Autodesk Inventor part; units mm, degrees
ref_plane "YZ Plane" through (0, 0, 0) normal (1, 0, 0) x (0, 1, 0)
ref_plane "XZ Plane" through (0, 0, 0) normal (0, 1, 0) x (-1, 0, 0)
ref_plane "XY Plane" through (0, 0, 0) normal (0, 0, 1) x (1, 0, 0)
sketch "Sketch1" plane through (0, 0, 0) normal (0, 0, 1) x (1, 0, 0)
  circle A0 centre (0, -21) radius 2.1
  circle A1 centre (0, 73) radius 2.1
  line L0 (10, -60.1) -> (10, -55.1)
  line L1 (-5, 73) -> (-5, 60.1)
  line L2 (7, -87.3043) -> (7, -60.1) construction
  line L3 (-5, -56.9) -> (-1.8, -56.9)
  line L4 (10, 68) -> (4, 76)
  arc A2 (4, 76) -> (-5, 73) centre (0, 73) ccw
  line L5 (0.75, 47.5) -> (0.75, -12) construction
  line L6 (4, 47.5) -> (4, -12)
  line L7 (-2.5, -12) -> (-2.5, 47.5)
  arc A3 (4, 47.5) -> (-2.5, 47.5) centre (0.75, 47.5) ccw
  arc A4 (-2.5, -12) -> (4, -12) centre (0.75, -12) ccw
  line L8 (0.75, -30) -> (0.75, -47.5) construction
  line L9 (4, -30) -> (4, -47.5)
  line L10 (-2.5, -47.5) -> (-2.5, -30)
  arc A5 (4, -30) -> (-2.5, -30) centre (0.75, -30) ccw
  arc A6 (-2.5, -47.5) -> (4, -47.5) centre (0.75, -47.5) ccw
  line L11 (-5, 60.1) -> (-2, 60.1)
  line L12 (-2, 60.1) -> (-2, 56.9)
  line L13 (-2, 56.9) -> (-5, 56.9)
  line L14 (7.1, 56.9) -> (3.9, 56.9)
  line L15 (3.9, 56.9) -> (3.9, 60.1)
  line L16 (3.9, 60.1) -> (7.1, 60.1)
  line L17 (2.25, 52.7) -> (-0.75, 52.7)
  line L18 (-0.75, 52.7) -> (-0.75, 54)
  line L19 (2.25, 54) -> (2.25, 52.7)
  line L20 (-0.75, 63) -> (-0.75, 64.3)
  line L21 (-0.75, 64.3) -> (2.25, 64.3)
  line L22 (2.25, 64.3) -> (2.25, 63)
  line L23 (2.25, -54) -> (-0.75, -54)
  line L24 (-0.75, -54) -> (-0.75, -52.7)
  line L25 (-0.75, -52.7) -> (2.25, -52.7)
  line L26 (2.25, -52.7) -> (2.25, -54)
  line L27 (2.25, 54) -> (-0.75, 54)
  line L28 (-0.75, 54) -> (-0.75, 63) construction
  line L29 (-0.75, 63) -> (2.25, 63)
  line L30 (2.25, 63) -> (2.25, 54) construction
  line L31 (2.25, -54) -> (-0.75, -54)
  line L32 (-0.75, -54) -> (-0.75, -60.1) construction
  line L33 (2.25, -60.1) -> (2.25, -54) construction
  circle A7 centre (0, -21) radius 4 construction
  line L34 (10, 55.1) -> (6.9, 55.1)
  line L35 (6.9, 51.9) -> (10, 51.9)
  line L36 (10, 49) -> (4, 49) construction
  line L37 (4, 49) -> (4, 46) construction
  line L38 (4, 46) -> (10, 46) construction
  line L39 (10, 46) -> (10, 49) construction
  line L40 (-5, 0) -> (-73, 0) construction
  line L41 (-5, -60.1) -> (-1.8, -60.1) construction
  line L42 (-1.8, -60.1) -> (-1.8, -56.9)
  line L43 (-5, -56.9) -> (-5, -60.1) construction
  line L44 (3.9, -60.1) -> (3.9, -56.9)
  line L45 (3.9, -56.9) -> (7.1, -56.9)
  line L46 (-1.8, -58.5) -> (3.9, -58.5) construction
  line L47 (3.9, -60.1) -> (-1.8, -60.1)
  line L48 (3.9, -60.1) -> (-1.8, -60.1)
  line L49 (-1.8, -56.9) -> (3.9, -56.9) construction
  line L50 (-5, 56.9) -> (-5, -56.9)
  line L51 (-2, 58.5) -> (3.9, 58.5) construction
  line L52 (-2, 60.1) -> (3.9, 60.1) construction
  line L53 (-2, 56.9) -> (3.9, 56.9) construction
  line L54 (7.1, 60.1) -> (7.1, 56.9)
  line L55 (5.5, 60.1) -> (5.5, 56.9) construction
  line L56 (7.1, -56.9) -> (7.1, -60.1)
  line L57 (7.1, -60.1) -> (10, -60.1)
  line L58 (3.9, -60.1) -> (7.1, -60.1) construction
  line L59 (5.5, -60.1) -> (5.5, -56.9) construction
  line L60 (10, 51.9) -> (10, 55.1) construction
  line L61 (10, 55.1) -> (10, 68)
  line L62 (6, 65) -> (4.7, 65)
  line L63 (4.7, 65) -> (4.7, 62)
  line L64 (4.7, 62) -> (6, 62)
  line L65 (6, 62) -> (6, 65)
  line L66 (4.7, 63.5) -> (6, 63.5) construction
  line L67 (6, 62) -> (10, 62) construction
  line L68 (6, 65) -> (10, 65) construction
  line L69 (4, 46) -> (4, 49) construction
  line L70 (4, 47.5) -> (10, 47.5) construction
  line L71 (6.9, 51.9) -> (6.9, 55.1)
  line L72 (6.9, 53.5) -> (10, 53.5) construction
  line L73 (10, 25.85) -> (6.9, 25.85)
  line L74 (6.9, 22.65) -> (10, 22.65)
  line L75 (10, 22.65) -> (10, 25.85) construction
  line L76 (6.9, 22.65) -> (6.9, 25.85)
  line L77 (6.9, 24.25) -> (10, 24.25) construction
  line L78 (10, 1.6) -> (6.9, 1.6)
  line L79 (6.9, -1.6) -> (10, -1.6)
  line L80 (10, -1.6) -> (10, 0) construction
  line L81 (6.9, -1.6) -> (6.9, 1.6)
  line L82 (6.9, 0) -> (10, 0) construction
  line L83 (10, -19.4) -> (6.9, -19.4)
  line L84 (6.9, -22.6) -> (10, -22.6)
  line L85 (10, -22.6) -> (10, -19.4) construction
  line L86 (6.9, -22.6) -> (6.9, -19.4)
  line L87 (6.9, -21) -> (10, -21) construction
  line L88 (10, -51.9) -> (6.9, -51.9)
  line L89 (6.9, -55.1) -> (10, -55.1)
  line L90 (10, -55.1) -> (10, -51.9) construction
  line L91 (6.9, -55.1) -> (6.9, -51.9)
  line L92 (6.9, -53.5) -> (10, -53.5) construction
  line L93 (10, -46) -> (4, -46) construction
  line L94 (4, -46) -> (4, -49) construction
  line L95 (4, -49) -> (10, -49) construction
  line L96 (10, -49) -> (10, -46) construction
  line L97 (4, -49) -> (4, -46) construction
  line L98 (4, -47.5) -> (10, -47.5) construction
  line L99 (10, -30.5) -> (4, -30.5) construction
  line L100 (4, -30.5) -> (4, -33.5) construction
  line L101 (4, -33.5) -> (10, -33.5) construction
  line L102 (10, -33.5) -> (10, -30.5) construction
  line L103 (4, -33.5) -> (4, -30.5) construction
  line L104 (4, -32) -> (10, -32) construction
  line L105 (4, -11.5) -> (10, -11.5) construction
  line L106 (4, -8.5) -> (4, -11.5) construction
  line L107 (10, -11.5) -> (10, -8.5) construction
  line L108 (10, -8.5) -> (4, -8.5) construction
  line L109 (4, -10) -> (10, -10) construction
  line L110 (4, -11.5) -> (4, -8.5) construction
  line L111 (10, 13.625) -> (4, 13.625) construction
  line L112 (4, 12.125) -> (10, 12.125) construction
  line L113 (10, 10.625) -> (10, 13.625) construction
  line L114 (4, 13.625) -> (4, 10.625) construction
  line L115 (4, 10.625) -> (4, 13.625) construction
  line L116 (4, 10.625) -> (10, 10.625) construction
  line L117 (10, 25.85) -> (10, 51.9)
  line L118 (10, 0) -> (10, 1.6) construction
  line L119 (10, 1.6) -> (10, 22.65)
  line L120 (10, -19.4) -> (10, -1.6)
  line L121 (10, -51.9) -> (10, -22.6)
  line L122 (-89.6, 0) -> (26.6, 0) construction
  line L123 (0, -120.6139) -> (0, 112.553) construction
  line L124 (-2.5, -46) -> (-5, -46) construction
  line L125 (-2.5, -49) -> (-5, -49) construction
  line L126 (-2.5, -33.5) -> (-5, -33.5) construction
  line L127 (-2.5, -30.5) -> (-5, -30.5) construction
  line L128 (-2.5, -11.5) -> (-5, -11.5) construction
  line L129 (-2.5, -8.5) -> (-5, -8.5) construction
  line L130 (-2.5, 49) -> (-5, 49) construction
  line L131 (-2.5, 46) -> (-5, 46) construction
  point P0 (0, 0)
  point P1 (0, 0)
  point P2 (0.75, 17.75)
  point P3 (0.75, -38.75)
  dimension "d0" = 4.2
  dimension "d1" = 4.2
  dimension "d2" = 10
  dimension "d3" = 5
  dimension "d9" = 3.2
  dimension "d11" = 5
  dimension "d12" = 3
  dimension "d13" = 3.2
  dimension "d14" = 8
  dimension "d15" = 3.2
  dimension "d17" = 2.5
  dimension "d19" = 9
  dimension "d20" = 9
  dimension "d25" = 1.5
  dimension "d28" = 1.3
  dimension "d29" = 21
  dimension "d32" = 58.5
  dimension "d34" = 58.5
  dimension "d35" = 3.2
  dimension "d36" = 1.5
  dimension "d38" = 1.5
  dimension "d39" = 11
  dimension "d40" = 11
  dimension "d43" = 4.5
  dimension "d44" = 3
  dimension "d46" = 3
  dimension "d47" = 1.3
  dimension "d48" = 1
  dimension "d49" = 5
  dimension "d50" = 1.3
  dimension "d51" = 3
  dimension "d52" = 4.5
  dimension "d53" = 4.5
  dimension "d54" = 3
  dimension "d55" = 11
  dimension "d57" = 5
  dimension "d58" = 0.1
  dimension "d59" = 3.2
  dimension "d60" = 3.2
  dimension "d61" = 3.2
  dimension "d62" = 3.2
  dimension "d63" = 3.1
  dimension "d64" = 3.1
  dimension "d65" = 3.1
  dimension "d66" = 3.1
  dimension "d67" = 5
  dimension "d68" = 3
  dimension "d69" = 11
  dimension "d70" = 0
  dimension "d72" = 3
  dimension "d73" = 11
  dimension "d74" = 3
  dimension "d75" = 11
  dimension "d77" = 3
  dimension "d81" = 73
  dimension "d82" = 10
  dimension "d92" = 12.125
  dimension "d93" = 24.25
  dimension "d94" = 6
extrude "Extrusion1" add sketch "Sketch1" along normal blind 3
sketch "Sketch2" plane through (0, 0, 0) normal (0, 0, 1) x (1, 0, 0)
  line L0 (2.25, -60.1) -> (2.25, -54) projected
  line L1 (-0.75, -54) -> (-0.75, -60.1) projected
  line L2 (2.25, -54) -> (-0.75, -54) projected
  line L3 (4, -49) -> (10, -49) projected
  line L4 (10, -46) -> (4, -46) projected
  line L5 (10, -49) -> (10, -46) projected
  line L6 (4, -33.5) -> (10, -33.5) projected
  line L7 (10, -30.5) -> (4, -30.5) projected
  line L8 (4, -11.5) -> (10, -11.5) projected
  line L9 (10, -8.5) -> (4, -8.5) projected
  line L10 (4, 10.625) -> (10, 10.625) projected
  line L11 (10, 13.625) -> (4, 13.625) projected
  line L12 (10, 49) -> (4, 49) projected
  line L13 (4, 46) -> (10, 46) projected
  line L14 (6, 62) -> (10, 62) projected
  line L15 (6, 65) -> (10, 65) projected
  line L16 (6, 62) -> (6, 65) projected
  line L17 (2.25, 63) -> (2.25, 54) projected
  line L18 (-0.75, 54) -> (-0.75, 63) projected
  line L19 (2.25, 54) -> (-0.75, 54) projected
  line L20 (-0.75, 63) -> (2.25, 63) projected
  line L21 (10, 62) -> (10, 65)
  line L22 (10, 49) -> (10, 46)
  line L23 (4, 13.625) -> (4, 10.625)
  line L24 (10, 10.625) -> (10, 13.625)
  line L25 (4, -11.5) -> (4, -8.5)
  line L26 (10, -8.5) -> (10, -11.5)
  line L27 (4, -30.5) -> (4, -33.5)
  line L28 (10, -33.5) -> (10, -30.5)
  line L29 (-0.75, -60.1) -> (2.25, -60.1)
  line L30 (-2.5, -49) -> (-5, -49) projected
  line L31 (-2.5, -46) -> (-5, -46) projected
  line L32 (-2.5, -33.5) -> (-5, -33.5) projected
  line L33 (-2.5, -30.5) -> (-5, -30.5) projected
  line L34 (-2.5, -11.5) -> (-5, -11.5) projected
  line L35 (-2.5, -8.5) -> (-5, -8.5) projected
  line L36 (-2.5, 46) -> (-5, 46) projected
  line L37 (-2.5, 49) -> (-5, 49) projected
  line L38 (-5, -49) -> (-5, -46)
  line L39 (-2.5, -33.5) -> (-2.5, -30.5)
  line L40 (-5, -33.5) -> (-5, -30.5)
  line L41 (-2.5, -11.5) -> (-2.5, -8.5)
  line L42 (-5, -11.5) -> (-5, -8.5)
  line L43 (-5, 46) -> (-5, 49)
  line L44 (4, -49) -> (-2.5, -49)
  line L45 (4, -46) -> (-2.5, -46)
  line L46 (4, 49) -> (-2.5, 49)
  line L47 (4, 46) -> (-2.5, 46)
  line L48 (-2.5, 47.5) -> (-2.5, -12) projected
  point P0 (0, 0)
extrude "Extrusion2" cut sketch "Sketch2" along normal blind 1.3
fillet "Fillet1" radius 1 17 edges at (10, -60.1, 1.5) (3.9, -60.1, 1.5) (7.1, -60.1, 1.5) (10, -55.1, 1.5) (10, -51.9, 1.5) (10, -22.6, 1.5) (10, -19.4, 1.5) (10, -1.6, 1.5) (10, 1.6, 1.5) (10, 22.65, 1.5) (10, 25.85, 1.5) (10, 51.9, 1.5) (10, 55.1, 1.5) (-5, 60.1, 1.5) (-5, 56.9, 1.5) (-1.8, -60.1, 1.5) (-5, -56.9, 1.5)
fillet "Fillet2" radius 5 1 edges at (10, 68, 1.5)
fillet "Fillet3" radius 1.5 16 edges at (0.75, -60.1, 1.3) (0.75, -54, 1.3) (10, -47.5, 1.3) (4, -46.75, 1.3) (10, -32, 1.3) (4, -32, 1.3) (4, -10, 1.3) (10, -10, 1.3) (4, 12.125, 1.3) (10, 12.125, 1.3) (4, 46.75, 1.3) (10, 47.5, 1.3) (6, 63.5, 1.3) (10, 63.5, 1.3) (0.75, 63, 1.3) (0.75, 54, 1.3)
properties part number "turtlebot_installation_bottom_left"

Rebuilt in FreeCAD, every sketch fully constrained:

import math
import FreeCAD as App
import Part
import Sketcher
from FreeCAD import Vector
Q = App.Units.Quantity


def edges_at(feature, points):
    """Names of the edges that pass closest to the given points."""
    edges = feature.Shape.Edges
    near = lambda p: min(range(len(edges)), key=lambda i: edges[i].distToShape(Part.Vertex(*p))[0])
    return sorted({f"Edge{near(p) + 1}" for p in points})


def add_polygon(sketch, points):
    """Adds a closed chain of lines whose ends are joined by coincident constraints."""
    first, n = sketch.GeometryCount, len(points)
    for a, b in zip(points, points[1:] + points[:1]):
        sketch.addGeometry(Part.LineSegment(App.Vector(*a, 0), App.Vector(*b, 0)), False)
    for i in range(n):
        sketch.addConstraint(Sketcher.Constraint("Coincident", first + i, 2, first + (i + 1) % n, 1))

doc = App.newDocument("Part")
body = doc.addObject("PartDesign::Body", "Body")

sketch1 = body.newObject("Sketcher::SketchObject", "Sketch")
sketch1.AttachmentSupport = (doc.getObject("XY_Plane"), [""])
sketch1.MapMode = "FlatFace"
sketch1.addGeometry(Part.LineSegment(Vector(7.1, -60.1, 0), Vector(10, -60.1, 0)), False)
sketch1.addGeometry(Part.LineSegment(Vector(10, -60.1, 0), Vector(10, -55.1, 0)), False)
sketch1.addGeometry(Part.LineSegment(Vector(10, -55.1, 0), Vector(6.9, -55.1, 0)), False)
sketch1.addGeometry(Part.LineSegment(Vector(6.9, -55.1, 0), Vector(6.9, -51.9, 0)), False)
sketch1.addGeometry(Part.LineSegment(Vector(6.9, -51.9, 0), Vector(10, -51.9, 0)), False)
sketch1.addGeometry(Part.LineSegment(Vector(10, -51.9, 0), Vector(10, -22.6, 0)), False)
sketch1.addGeometry(Part.LineSegment(Vector(10, -22.6, 0), Vector(6.9, -22.6, 0)), False)
sketch1.addGeometry(Part.LineSegment(Vector(6.9, -22.6, 0), Vector(6.9, -19.4, 0)), False)
sketch1.addGeometry(Part.LineSegment(Vector(6.9, -19.4, 0), Vector(10, -19.4, 0)), False)
sketch1.addGeometry(Part.LineSegment(Vector(10, -19.4, 0), Vector(10, -1.6, 0)), False)
sketch1.addGeometry(Part.LineSegment(Vector(10, -1.6, 0), Vector(6.9, -1.6, 0)), False)
sketch1.addGeometry(Part.LineSegment(Vector(6.9, -1.6, 0), Vector(6.9, 1.6, 0)), False)
sketch1.addGeometry(Part.LineSegment(Vector(6.9, 1.6, 0), Vector(10, 1.6, 0)), False)
sketch1.addGeometry(Part.LineSegment(Vector(10, 1.6, 0), Vector(10, 22.65, 0)), False)
sketch1.addGeometry(Part.LineSegment(Vector(10, 22.65, 0), Vector(6.9, 22.65, 0)), False)
sketch1.addGeometry(Part.LineSegment(Vector(6.9, 22.65, 0), Vector(6.9, 25.85, 0)), False)
sketch1.addGeometry(Part.LineSegment(Vector(6.9, 25.85, 0), Vector(10, 25.85, 0)), False)
sketch1.addGeometry(Part.LineSegment(Vector(10, 25.85, 0), Vector(10, 51.9, 0)), False)
sketch1.addGeometry(Part.LineSegment(Vector(10, 51.9, 0), Vector(6.9, 51.9, 0)), False)
sketch1.addGeometry(Part.LineSegment(Vector(6.9, 51.9, 0), Vector(6.9, 55.1, 0)), False)
sketch1.addGeometry(Part.LineSegment(Vector(6.9, 55.1, 0), Vector(10, 55.1, 0)), False)
sketch1.addGeometry(Part.LineSegment(Vector(10, 55.1, 0), Vector(10, 68, 0)), False)
sketch1.addGeometry(Part.LineSegment(Vector(10, 68, 0), Vector(4, 76, 0)), False)
sketch1.addGeometry(Part.ArcOfCircle(Part.Circle(Vector(0, 73, 0), Vector(0, 0, 1), 5), math.radians(36.869898), math.radians(180)), False)
sketch1.addGeometry(Part.LineSegment(Vector(-5, 73, 0), Vector(-5, 60.1, 0)), False)
sketch1.addGeometry(Part.LineSegment(Vector(-5, 60.1, 0), Vector(-2, 60.1, 0)), False)
sketch1.addGeometry(Part.LineSegment(Vector(-2, 60.1, 0), Vector(-2, 56.9, 0)), False)
sketch1.addGeometry(Part.LineSegment(Vector(-2, 56.9, 0), Vector(-5, 56.9, 0)), False)
sketch1.addGeometry(Part.LineSegment(Vector(-5, 56.9, 0), Vector(-5, -56.9, 0)), False)
sketch1.addGeometry(Part.LineSegment(Vector(-5, -56.9, 0), Vector(-1.8, -56.9, 0)), False)
sketch1.addGeometry(Part.LineSegment(Vector(-1.8, -56.9, 0), Vector(-1.8, -60.1, 0)), False)
sketch1.addGeometry(Part.LineSegment(Vector(-1.8, -60.1, 0), Vector(3.9, -60.1, 0)), False)
sketch1.addGeometry(Part.LineSegment(Vector(3.9, -60.1, 0), Vector(3.9, -56.9, 0)), False)
sketch1.addGeometry(Part.LineSegment(Vector(3.9, -56.9, 0), Vector(7.1, -56.9, 0)), False)
sketch1.addGeometry(Part.LineSegment(Vector(7.1, -56.9, 0), Vector(7.1, -60.1, 0)), False)
add_polygon(sketch1, [(2.25, -52.7), (2.25, -54), (-0.75, -54), (-0.75, -52.7)])
sketch1.addGeometry(Part.ArcOfCircle(Part.Circle(Vector(0.75, -30, 0), Vector(0, 0, 1), 3.25), math.radians(0), math.radians(180)), False)
sketch1.addGeometry(Part.LineSegment(Vector(4, -30, 0), Vector(4, -47.5, 0)), False)
sketch1.addGeometry(Part.ArcOfCircle(Part.Circle(Vector(0.75, -47.5, 0), Vector(0, 0, 1), 3.25), math.radians(180), math.radians(360)), False)
sketch1.addGeometry(Part.LineSegment(Vector(-2.5, -47.5, 0), Vector(-2.5, -30, 0)), False)
sketch1.addGeometry(Part.Circle(Vector(0, -21, 0), Vector(0, 0, 1), 2.1), False)
sketch1.addGeometry(Part.ArcOfCircle(Part.Circle(Vector(0.75, 47.5, 0), Vector(0, 0, 1), 3.25), math.radians(0), math.radians(180)), False)
sketch1.addGeometry(Part.LineSegment(Vector(4, 47.5, 0), Vector(4, -12, 0)), False)
sketch1.addGeometry(Part.ArcOfCircle(Part.Circle(Vector(0.75, -12, 0), Vector(0, 0, 1), 3.25), math.radians(180), math.radians(360)), False)
sketch1.addGeometry(Part.LineSegment(Vector(-2.5, -12, 0), Vector(-2.5, 47.5, 0)), False)
add_polygon(sketch1, [(2.25, 54), (2.25, 52.7), (-0.75, 52.7), (-0.75, 54)])
sketch1.addGeometry(Part.Circle(Vector(0, 73, 0), Vector(0, 0, 1), 2.1), False)
add_polygon(sketch1, [(2.25, 63), (-0.75, 63), (-0.75, 64.3), (2.25, 64.3)])
add_polygon(sketch1, [(7.1, 60.1), (7.1, 56.9), (3.9, 56.9), (3.9, 60.1)])
add_polygon(sketch1, [(4.7, 65), (6, 65), (6, 62), (4.7, 62)])
sketch1.addConstraint([
    Sketcher.Constraint("Coincident", 0, 2, 1, 1),
    Sketcher.Constraint("Coincident", 1, 2, 2, 1),
    Sketcher.Constraint("Coincident", 2, 2, 3, 1),
    Sketcher.Constraint("Coincident", 3, 2, 4, 1),
    Sketcher.Constraint("Coincident", 4, 2, 5, 1),
    Sketcher.Constraint("Coincident", 5, 2, 6, 1),
    Sketcher.Constraint("Coincident", 6, 2, 7, 1),
    Sketcher.Constraint("Coincident", 7, 2, 8, 1),
    Sketcher.Constraint("Coincident", 8, 2, 9, 1),
    Sketcher.Constraint("Coincident", 9, 2, 10, 1),
    Sketcher.Constraint("Coincident", 10, 2, 11, 1),
    Sketcher.Constraint("Coincident", 11, 2, 12, 1),
    Sketcher.Constraint("Coincident", 12, 2, 13, 1),
    Sketcher.Constraint("Coincident", 13, 2, 14, 1),
    Sketcher.Constraint("Coincident", 14, 2, 15, 1),
    Sketcher.Constraint("Coincident", 15, 2, 16, 1),
    Sketcher.Constraint("Coincident", 16, 2, 17, 1),
    Sketcher.Constraint("Coincident", 17, 2, 18, 1),
    Sketcher.Constraint("Coincident", 18, 2, 19, 1),
    Sketcher.Constraint("Coincident", 19, 2, 20, 1),
    Sketcher.Constraint("Coincident", 20, 2, 21, 1),
    Sketcher.Constraint("Coincident", 21, 2, 22, 1),
    Sketcher.Constraint("Tangent", 22, 2, 23, 1),
    Sketcher.Constraint("Tangent", 23, 2, 24, 1),
    Sketcher.Constraint("Coincident", 24, 2, 25, 1),
    Sketcher.Constraint("Coincident", 25, 2, 26, 1),
    Sketcher.Constraint("Coincident", 26, 2, 27, 1),
    Sketcher.Constraint("Coincident", 27, 2, 28, 1),
    Sketcher.Constraint("Coincident", 28, 2, 29, 1),
    Sketcher.Constraint("Coincident", 29, 2, 30, 1),
    Sketcher.Constraint("Coincident", 30, 2, 31, 1),
    Sketcher.Constraint("Coincident", 31, 2, 32, 1),
    Sketcher.Constraint("Coincident", 32, 2, 33, 1),
    Sketcher.Constraint("Coincident", 33, 2, 34, 1),
    Sketcher.Constraint("Coincident", 34, 2, 0, 1),
    Sketcher.Constraint("Tangent", 39, 1, 40, 1),
    Sketcher.Constraint("Tangent", 40, 2, 41, 2),
    Sketcher.Constraint("Tangent", 41, 1, 42, 1),
    Sketcher.Constraint("Tangent", 42, 2, 39, 2),
    Sketcher.Constraint("Tangent", 44, 1, 45, 1),
    Sketcher.Constraint("Tangent", 45, 2, 46, 2),
    Sketcher.Constraint("Tangent", 46, 1, 47, 1),
    Sketcher.Constraint("Tangent", 47, 2, 44, 2),
    Sketcher.Constraint("Horizontal", 0),
    Sketcher.Constraint("Vertical", 1),
    Sketcher.Constraint("Horizontal", 2),
    Sketcher.Constraint("Vertical", 3),
    Sketcher.Constraint("Horizontal", 4),
    Sketcher.Constraint("Vertical", 5),
    Sketcher.Constraint("Horizontal", 6),
    Sketcher.Constraint("Vertical", 7),
    Sketcher.Constraint("Horizontal", 8),
    Sketcher.Constraint("Vertical", 9),
    Sketcher.Constraint("Horizontal", 10),
    Sketcher.Constraint("Vertical", 11),
    Sketcher.Constraint("Horizontal", 12),
    Sketcher.Constraint("Vertical", 13),
    Sketcher.Constraint("Horizontal", 14),
    Sketcher.Constraint("Vertical", 15),
    Sketcher.Constraint("Horizontal", 16),
    Sketcher.Constraint("Vertical", 17),
    Sketcher.Constraint("Horizontal", 18),
    Sketcher.Constraint("Vertical", 19),
    Sketcher.Constraint("Horizontal", 20),
    Sketcher.Constraint("Vertical", 21),
    Sketcher.Constraint("Vertical", 24),
    Sketcher.Constraint("Horizontal", 25),
    Sketcher.Constraint("Vertical", 26),
    Sketcher.Constraint("Horizontal", 27),
    Sketcher.Constraint("Vertical", 28),
    Sketcher.Constraint("Horizontal", 29),
    Sketcher.Constraint("Vertical", 30),
    Sketcher.Constraint("Horizontal", 31),
    Sketcher.Constraint("Vertical", 32),
    Sketcher.Constraint("Horizontal", 33),
    Sketcher.Constraint("Vertical", 34),
    Sketcher.Constraint("Vertical", 35),
    Sketcher.Constraint("Horizontal", 36),
    Sketcher.Constraint("Vertical", 37),
    Sketcher.Constraint("Horizontal", 38),
    Sketcher.Constraint("Vertical", 40),
    Sketcher.Constraint("Vertical", 42),
    Sketcher.Constraint("Vertical", 45),
    Sketcher.Constraint("Vertical", 47),
    Sketcher.Constraint("Vertical", 48),
    Sketcher.Constraint("Horizontal", 49),
    Sketcher.Constraint("Vertical", 50),
    Sketcher.Constraint("Horizontal", 51),
    Sketcher.Constraint("Horizontal", 53),
    Sketcher.Constraint("Vertical", 54),
    Sketcher.Constraint("Horizontal", 55),
    Sketcher.Constraint("Vertical", 56),
    Sketcher.Constraint("Vertical", 57),
    Sketcher.Constraint("Horizontal", 58),
    Sketcher.Constraint("Vertical", 59),
    Sketcher.Constraint("Horizontal", 60),
    Sketcher.Constraint("Horizontal", 61),
    Sketcher.Constraint("Vertical", 62),
    Sketcher.Constraint("Horizontal", 63),
    Sketcher.Constraint("Vertical", 64),
    Sketcher.Constraint("Coincident", 52, 3, 23, 3),
    Sketcher.Constraint("Equal", 41, 44),
    Sketcher.Constraint("Equal", 43, 52),
    Sketcher.Constraint("Symmetric", 41, 3, 44, 3, -1),
    Sketcher.Constraint("Symmetric", 9, 2, 12, 2, -1),
    Sketcher.Constraint("Symmetric", 4, 2, 17, 2, -1),
    Sketcher.Constraint("Symmetric", 2, 2, 19, 2, -1),
    Sketcher.Constraint("Symmetric", 38, 2, 48, 2, -1),
    Sketcher.Constraint("Symmetric", 36, 2, 50, 2, -1),
    Sketcher.Constraint("Symmetric", 33, 2, 57, 2, -1),
    Sketcher.Constraint("Symmetric", 31, 2, 59, 2, -1),
    Sketcher.Constraint("PointOnObject", 23, 3, -2),
    Sketcher.Constraint("PointOnObject", 43, 3, -2),
    Sketcher.Constraint("Horizontal", 0, 2, 30, 2),
    Sketcher.Constraint("Horizontal", 29, 2, 32, 2),
    Sketcher.Constraint("Horizontal", 27, 2, 57, 2),
    Sketcher.Constraint("Horizontal", 25, 2, 59, 2),
    Sketcher.Constraint("Vertical", 1, 2, 4, 2),
    Sketcher.Constraint("Vertical", 3, 2, 6, 2),
    Sketcher.Constraint("Vertical", 5, 2, 8, 2),
    Sketcher.Constraint("Vertical", 7, 2, 10, 2),
    Sketcher.Constraint("Vertical", 11, 2, 14, 2),
    Sketcher.Constraint("Vertical", 17, 2, 20, 2),
    Sketcher.Constraint("Vertical", 24, 2, 27, 2),
    Sketcher.Constraint("Vertical", 22, 2, 39, 1),
    Sketcher.Constraint("Vertical", 50, 2, 53, 2),
    Sketcher.Constraint("Vertical", 51, 2, 55, 2),
    Sketcher.Constraint("Equal", 29, 33),
    Sketcher.Constraint("Equal", 27, 36),
    Sketcher.Constraint("Equal", 60, 3),
    Sketcher.Constraint("Equal", 3, 7),
    Sketcher.Constraint("Equal", 7, 11),
    Sketcher.Constraint("Equal", 11, 15),
    Sketcher.Constraint("Equal", 21, 24),
    Sketcher.Constraint("Equal", 19, 26),
    Sketcher.Constraint("Equal", 63, 35),
    Sketcher.Constraint("Equal", 50, 54),
    Sketcher.Constraint("Equal", 55, 62),
    Sketcher.Constraint("Radius", 23, Q("5 mm")),
    Sketcher.Constraint("Diameter", 43, Q("4.2 mm")),
    Sketcher.Constraint("DistanceX", 25, 1, 25, 2, Q("3 mm")),
    Sketcher.Constraint("DistanceY", 1, 1, 1, 2, Q("5 mm")),
    Sketcher.Constraint("Distance", 22, Q("10 mm")),
    Sketcher.Constraint("DistanceX", 2, 2, 2, 1, Q("3.1 mm")),
    Sketcher.Constraint("DistanceX", 29, 1, 29, 2, Q("3.2 mm")),
    Sketcher.Constraint("DistanceX", 61, 1, 61, 2, Q("1.3 mm")),
    Sketcher.Constraint("DistanceY", -1, 1, 23, 3, Q("73 mm")),
    Sketcher.Constraint("DistanceY", 43, 3, -1, 1, Q("21 mm")),
    Sketcher.Constraint("DistanceX", -1, 1, 61, 2, Q("6 mm")),
    Sketcher.Constraint("DistanceX", 41, 1, -1, 1, Q("2.5 mm")),
    Sketcher.Constraint("DistanceX", 0, 1, 0, 2, Q("2.9 mm")),
    Sketcher.Constraint("DistanceY", 5, 1, 5, 2, Q("29.3 mm")),
    Sketcher.Constraint("DistanceY", 9, 1, 9, 2, Q("17.8 mm")),
    Sketcher.Constraint("DistanceY", 40, 2, 40, 1, Q("17.5 mm")),
    Sketcher.Constraint("DistanceY", 45, 2, 45, 1, Q("59.5 mm")),
    Sketcher.Constraint("DistanceY", 39, 3, -1, 1, Q("30 mm")),
    Sketcher.Constraint("DistanceY", 35, 2, -1, 1, Q("54 mm")),
    Sketcher.Constraint("DistanceY", -1, 1, 53, 2, Q("63 mm")),
    Sketcher.Constraint("DistanceY", -1, 1, 61, 2, Q("65 mm")),
    Sketcher.Constraint("DistanceY", 13, 1, 13, 2, Q("21.05 mm")),
    Sketcher.Constraint("DistanceX", -1, 1, 35, 2, Q("2.25 mm")),
])
pad1 = body.newObject("PartDesign::Pad", "Pad")
pad1.Profile = sketch1
pad1.Length = 3

sketch2 = body.newObject("Sketcher::SketchObject", "Sketch001")
sketch2.AttachmentSupport = (doc.getObject("XY_Plane"), [""])
sketch2.MapMode = "FlatFace"
add_polygon(sketch2, [(-0.75, -60.1), (2.25, -60.1), (2.25, -54), (-0.75, -54)])
add_polygon(sketch2, [(-5, -49), (10, -49), (10, -46), (-5, -46)])
add_polygon(sketch2, [(4, -30.5), (4, -33.5), (10, -33.5), (10, -30.5)])
add_polygon(sketch2, [(4, -8.5), (4, -11.5), (10, -11.5), (10, -8.5)])
add_polygon(sketch2, [(4, 13.625), (4, 10.625), (10, 10.625), (10, 13.625)])
add_polygon(sketch2, [(10, 46), (10, 49), (-5, 49), (-5, 46)])
add_polygon(sketch2, [(-2.5, -11.5), (-2.5, -8.5), (-5, -8.5), (-5, -11.5)])
add_polygon(sketch2, [(6, 65), (6, 62), (10, 62), (10, 65)])
add_polygon(sketch2, [(2.25, 54), (2.25, 63), (-0.75, 63), (-0.75, 54)])
add_polygon(sketch2, [(-5, -33.5), (-2.5, -33.5), (-2.5, -30.5), (-5, -30.5)])
sketch2.addConstraint([
    Sketcher.Constraint("Horizontal", 0),
    Sketcher.Constraint("Vertical", 1),
    Sketcher.Constraint("Horizontal", 2),
    Sketcher.Constraint("Vertical", 3),
    Sketcher.Constraint("Horizontal", 4),
    Sketcher.Constraint("Vertical", 5),
    Sketcher.Constraint("Horizontal", 6),
    Sketcher.Constraint("Vertical", 7),
    Sketcher.Constraint("Vertical", 8),
    Sketcher.Constraint("Horizontal", 9),
    Sketcher.Constraint("Vertical", 10),
    Sketcher.Constraint("Horizontal", 11),
    Sketcher.Constraint("Vertical", 12),
    Sketcher.Constraint("Horizontal", 13),
    Sketcher.Constraint("Vertical", 14),
    Sketcher.Constraint("Horizontal", 15),
    Sketcher.Constraint("Vertical", 16),
    Sketcher.Constraint("Horizontal", 17),
    Sketcher.Constraint("Vertical", 18),
    Sketcher.Constraint("Horizontal", 19),
    Sketcher.Constraint("Vertical", 20),
    Sketcher.Constraint("Horizontal", 21),
    Sketcher.Constraint("Vertical", 22),
    Sketcher.Constraint("Horizontal", 23),
    Sketcher.Constraint("Vertical", 24),
    Sketcher.Constraint("Horizontal", 25),
    Sketcher.Constraint("Vertical", 26),
    Sketcher.Constraint("Horizontal", 27),
    Sketcher.Constraint("Vertical", 28),
    Sketcher.Constraint("Horizontal", 29),
    Sketcher.Constraint("Vertical", 30),
    Sketcher.Constraint("Horizontal", 31),
    Sketcher.Constraint("Vertical", 32),
    Sketcher.Constraint("Horizontal", 33),
    Sketcher.Constraint("Vertical", 34),
    Sketcher.Constraint("Horizontal", 35),
    Sketcher.Constraint("Horizontal", 36),
    Sketcher.Constraint("Vertical", 37),
    Sketcher.Constraint("Horizontal", 38),
    Sketcher.Constraint("Vertical", 39),
    Sketcher.Constraint("Symmetric", 4, 2, 20, 2, -1),
    Sketcher.Constraint("Symmetric", 6, 2, 22, 2, -1),
    Sketcher.Constraint("Symmetric", 2, 2, 34, 2, -1),
    Sketcher.Constraint("Horizontal", 15, 2, 24, 2),
    Sketcher.Constraint("Horizontal", 13, 2, 26, 2),
    Sketcher.Constraint("Horizontal", 9, 2, 36, 2),
    Sketcher.Constraint("Horizontal", 11, 2, 37, 2),
    Sketcher.Constraint("Vertical", 5, 2, 9, 2),
    Sketcher.Constraint("Vertical", 11, 2, 12, 2),
    Sketcher.Constraint("Vertical", 10, 2, 13, 2),
    Sketcher.Constraint("Vertical", 15, 2, 16, 2),
    Sketcher.Constraint("Vertical", 14, 2, 17, 2),
    Sketcher.Constraint("Vertical", 22, 2, 25, 2),
    Sketcher.Constraint("Vertical", 23, 2, 29, 2),
    Sketcher.Constraint("Vertical", 1, 2, 32, 2),
    Sketcher.Constraint("Vertical", 27, 2, 36, 2),
    Sketcher.Constraint("Vertical", 26, 2, 38, 2),
    Sketcher.Constraint("Equal", 35, 5),
    Sketcher.Constraint("Equal", 7, 8),
    Sketcher.Constraint("Equal", 10, 12),
    Sketcher.Constraint("Equal", 14, 16),
    Sketcher.Constraint("Equal", 26, 28),
    Sketcher.Constraint("DistanceX", 0, 1, 0, 2, Q("3 mm")),
    Sketcher.Constraint("DistanceX", 4, 1, 4, 2, Q("15 mm")),
    Sketcher.Constraint("DistanceX", 9, 1, 9, 2, Q("6 mm")),
    Sketcher.Constraint("DistanceX", 29, 1, 29, 2, Q("4 mm")),
    Sketcher.Constraint("DistanceY", 32, 1, 32, 2, Q("9 mm")),
    Sketcher.Constraint("DistanceX", 25, 2, 25, 1, Q("2.5 mm")),
    Sketcher.Constraint("DistanceY", 1, 1, 1, 2, Q("6.1 mm")),
    Sketcher.Constraint("DistanceY", 1, 2, -1, 1, Q("54 mm")),
    Sketcher.Constraint("DistanceX", -1, 1, 4, 2, Q("10 mm")),
    Sketcher.Constraint("DistanceY", 4, 2, -1, 1, Q("49 mm")),
    Sketcher.Constraint("DistanceY", -1, 1, 28, 2, Q("62 mm")),
    Sketcher.Constraint("DistanceY", 11, 2, 12, 2, Q("19 mm")),
    Sketcher.Constraint("DistanceY", 8, 2, -1, 1, Q("33.5 mm")),
    Sketcher.Constraint("DistanceX", -1, 1, 0, 2, Q("2.25 mm")),
    Sketcher.Constraint("DistanceY", -1, 1, 16, 2, Q("10.625 mm")),
])
pocket1 = body.newObject("PartDesign::Pocket", "Pocket")
pocket1.Profile = sketch2
pocket1.Length = 1.3
pocket1.Reversed = True
doc.recompute()

fillet = body.newObject("PartDesign::Fillet", "Fillet")
fillet.Base = (pocket1, edges_at(pocket1, [
    (10, -60.1, 1.5),
    (3.9, -60.1, 1.5),
    (7.1, -60.1, 1.5),
    (10, -55.1, 1.5),
    (10, -51.9, 1.5),
    (10, -22.6, 1.5),
    (10, -19.4, 1.5),
    (10, -1.6, 1.5),
    (10, 1.6, 1.5),
    (10, 22.65, 1.5),
    (10, 25.85, 1.5),
    (10, 51.9, 1.5),
    (10, 55.1, 1.5),
    (-5, 60.1, 1.5),
    (-5, 56.9, 1.5),
    (-1.8, -60.1, 1.5),
    (-5, -56.9, 1.5),
]))
fillet.Radius = 1
doc.recompute()

fillet2 = body.newObject("PartDesign::Fillet", "Fillet001")
fillet2.Base = (fillet, edges_at(fillet, [(10, 68, 1.5)]))
fillet2.Radius = 5
doc.recompute()

fillet3 = body.newObject("PartDesign::Fillet", "Fillet002")
fillet3.Base = (fillet2, edges_at(fillet2, [
    (0.75, -60.1, 1.3),
    (0.75, -54, 1.3),
    (10, -47.5, 1.3),
    (4, -46.75, 1.3),
    (10, -32, 1.3),
    (4, -32, 1.3),
    (4, -10, 1.3),
    (10, -10, 1.3),
    (4, 12.125, 1.3),
    (10, 12.125, 1.3),
    (4, 46.75, 1.3),
    (10, 47.5, 1.3),
    (6, 63.5, 1.3),
    (10, 63.5, 1.3),
    (0.75, 63, 1.3),
    (0.75, 54, 1.3),
]))
fillet3.Radius = 1.5

doc.recompute()
